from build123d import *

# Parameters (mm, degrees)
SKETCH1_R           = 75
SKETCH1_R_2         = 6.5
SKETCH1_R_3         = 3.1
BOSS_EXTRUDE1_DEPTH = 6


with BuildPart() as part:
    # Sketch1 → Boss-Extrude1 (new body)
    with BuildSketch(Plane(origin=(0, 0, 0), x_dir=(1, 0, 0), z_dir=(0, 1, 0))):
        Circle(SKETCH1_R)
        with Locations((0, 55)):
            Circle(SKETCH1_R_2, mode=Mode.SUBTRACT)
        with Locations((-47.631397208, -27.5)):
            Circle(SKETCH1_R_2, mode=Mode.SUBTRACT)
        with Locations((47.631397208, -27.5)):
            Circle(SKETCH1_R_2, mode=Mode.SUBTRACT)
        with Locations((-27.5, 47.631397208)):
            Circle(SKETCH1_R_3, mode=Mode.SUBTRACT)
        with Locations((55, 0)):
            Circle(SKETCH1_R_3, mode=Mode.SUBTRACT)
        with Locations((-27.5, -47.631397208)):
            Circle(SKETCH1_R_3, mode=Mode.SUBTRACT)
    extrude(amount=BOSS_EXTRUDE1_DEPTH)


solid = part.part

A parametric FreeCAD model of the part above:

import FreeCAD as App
import Part
import Sketcher

V = App.Vector

doc = App.newDocument("Part")
params = doc.addObject("Spreadsheet::Sheet", "Params")
for row, (alias, value) in enumerate([
    ("sketch1_diameter", "150 mm"),
    ("sketch1_diameter2", "13 mm"),
    ("sketch1_diameter3", "6.2 mm"),
    ("pad1_length", "6 mm"),
], start=1):
    params.set(f"A{row}", alias)
    params.set(f"B{row}", "=" + value)
    params.setAlias(f"B{row}", alias)

body = doc.addObject("PartDesign::Body", "Body")

# Sketch on XZ plane
sketch1 = body.newObject("Sketcher::SketchObject", "Sketch")
sketch1.AttachmentSupport = (doc.getObject("XZ_Plane"), [""])
sketch1.MapMode = "FlatFace"
sketch1.addGeometry(Part.Circle(V(0, 0, 0), V(0, 0, 1), 75), False)
sketch1.addGeometry(Part.Circle(V(-27.5, 47.631397, 0), V(0, 0, 1), 3.1), False)
sketch1.addGeometry(Part.Circle(V(-47.631397, 27.5, 0), V(0, 0, 1), 6.5), False)
sketch1.addGeometry(Part.Circle(V(47.631397, 27.5, 0), V(0, 0, 1), 6.5), False)
sketch1.addGeometry(Part.Circle(V(55, 0, 0), V(0, 0, 1), 3.1), False)
sketch1.addGeometry(Part.Circle(V(-27.5, -47.631397, 0), V(0, 0, 1), 3.1), False)
sketch1.addGeometry(Part.Circle(V(0, -55, 0), V(0, 0, 1), 6.5), False)
sketch1.addConstraint(Sketcher.Constraint("Coincident", 0, 3, -1, 1))
sketch1.addConstraint(Sketcher.Constraint("Equal", 2, 3))
sketch1.addConstraint(Sketcher.Constraint("Equal", 1, 4))
sketch1.addConstraint(Sketcher.Constraint("Equal", 4, 5))
sketch1.addConstraint(Sketcher.Constraint("Equal", 3, 6))
sketch1.addConstraint(Sketcher.Constraint("Symmetric", 2, 3, 3, 3, -2))
sketch1.addConstraint(Sketcher.Constraint("Symmetric", 1, 3, 5, 3, -1))
sketch1.addConstraint(Sketcher.Constraint("PointOnObject", 4, 3, -1))
sketch1.addConstraint(Sketcher.Constraint("PointOnObject", 6, 3, -2))
sketch1.addConstraint(Sketcher.Constraint("Diameter", 0, 150.0))
sketch1.addConstraint(Sketcher.Constraint("Diameter", 2, 13.0))
sketch1.addConstraint(Sketcher.Constraint("Diameter", 1, 6.2))
sketch1.addConstraint(Sketcher.Constraint("DistanceX", -1, 1, 4, 3, 55.0))
sketch1.addConstraint(Sketcher.Constraint("DistanceY", 6, 3, -1, 1, 55.0))
sketch1.addConstraint(Sketcher.Constraint("DistanceX", 1, 3, -1, 1, 27.5))
sketch1.addConstraint(Sketcher.Constraint("DistanceY", -1, 1, 2, 3, 27.5))
sketch1.addConstraint(Sketcher.Constraint("DistanceY", -1, 1, 1, 3, 47.631397))
sketch1.addConstraint(Sketcher.Constraint("DistanceX", 2, 3, -1, 1, 47.631397))
sketch1.setExpression("Constraints[9]", "Params.sketch1_diameter")
sketch1.setExpression("Constraints[10]", "Params.sketch1_diameter2")
sketch1.setExpression("Constraints[11]", "Params.sketch1_diameter3")
pad1 = body.newObject("PartDesign::Pad", "Pad")
pad1.Profile = sketch1
pad1.setExpression("Length", "Params.pad1_length")
pad1.Reversed = True

doc.recompute()
